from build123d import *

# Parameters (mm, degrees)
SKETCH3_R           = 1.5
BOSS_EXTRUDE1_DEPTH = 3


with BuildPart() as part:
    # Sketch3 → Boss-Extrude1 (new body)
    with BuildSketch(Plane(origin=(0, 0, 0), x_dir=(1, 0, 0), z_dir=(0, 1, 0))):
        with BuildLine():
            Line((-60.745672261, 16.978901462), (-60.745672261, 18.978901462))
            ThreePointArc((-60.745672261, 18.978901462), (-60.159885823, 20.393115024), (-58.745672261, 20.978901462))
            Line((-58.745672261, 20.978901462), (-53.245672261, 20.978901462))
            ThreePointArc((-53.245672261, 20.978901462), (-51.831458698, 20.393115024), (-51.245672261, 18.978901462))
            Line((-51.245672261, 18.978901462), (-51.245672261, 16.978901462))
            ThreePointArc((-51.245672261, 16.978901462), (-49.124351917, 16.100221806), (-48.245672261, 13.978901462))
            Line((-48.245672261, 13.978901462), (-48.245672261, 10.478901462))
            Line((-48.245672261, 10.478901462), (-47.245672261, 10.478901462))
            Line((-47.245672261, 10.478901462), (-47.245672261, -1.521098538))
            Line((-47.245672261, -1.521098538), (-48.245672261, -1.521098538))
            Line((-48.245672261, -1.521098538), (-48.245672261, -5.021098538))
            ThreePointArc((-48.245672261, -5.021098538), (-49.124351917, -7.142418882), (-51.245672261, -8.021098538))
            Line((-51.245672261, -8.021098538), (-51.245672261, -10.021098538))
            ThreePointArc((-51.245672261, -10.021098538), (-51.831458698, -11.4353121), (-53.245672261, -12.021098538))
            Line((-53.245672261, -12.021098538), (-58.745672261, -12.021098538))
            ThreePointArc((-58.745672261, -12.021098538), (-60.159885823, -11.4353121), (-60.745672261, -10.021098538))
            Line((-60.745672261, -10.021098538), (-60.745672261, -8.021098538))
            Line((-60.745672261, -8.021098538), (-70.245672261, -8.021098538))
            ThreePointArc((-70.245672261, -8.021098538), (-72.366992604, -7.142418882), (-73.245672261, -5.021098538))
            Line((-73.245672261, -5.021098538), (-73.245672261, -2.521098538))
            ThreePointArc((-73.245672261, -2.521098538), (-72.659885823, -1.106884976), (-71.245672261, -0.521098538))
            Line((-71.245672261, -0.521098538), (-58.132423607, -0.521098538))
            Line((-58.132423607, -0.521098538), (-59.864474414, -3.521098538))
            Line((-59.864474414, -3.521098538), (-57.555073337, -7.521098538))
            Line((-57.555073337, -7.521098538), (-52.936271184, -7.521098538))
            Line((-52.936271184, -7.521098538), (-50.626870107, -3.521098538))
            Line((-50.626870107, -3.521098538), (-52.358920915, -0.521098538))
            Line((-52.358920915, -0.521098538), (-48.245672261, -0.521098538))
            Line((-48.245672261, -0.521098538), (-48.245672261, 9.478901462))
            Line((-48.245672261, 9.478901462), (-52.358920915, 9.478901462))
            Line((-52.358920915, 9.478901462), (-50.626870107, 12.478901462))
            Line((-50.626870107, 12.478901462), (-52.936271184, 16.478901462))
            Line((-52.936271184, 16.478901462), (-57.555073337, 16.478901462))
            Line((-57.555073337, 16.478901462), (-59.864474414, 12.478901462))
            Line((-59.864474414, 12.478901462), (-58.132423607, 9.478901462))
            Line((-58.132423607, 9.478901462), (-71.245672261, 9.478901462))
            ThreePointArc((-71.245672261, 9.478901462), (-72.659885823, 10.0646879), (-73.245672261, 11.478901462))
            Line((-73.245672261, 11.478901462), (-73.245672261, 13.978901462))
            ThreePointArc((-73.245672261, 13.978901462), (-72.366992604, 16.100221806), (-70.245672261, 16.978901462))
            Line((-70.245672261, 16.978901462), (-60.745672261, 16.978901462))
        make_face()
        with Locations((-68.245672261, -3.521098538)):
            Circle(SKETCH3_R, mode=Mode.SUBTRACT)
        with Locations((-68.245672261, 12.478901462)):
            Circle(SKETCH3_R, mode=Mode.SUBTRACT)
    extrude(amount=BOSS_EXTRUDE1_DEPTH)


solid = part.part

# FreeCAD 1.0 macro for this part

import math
import FreeCAD as App
import Part
import Sketcher
Q = App.Units.Quantity

doc = App.newDocument("Part")
body = doc.addObject("PartDesign::Body", "Body")

# Sketch on XZ plane
sketch1 = doc.addObject("Sketcher::SketchObject", "Sketch")
body.addObject(sketch1)
sketch1.AttachmentSupport = (doc.XZ_Plane, [""])
sketch1.MapMode = "FlatFace"
sketch1.addGeometry([
    Part.LineSegment(App.Vector(-60.7, -19, 0), App.Vector(-60.7, -17, 0)),  # 0
    Part.LineSegment(App.Vector(-60.7, -17, 0), App.Vector(-70.2, -17, 0)),  # 1
    Part.ArcOfCircle(Part.Circle(App.Vector(-70.2, -14, 0), App.Vector(0, 0, 1), 3), math.radians(180), math.radians(270)),  # 2
    Part.LineSegment(App.Vector(-73.2, -14, 0), App.Vector(-73.2, -11.5, 0)),  # 3
    Part.ArcOfCircle(Part.Circle(App.Vector(-71.2, -11.5, 0), App.Vector(0, 0, 1), 2), math.radians(90), math.radians(180)),  # 4
    Part.LineSegment(App.Vector(-71.2, -9.5, 0), App.Vector(-58.1, -9.5, 0)),  # 5
    Part.LineSegment(App.Vector(-58.1, -9.5, 0), App.Vector(-59.9, -12.5, 0)),  # 6
    Part.LineSegment(App.Vector(-59.9, -12.5, 0), App.Vector(-57.6, -16.5, 0)),  # 7
    Part.LineSegment(App.Vector(-57.6, -16.5, 0), App.Vector(-52.9, -16.5, 0)),  # 8
    Part.LineSegment(App.Vector(-52.9, -16.5, 0), App.Vector(-50.6, -12.5, 0)),  # 9
    Part.LineSegment(App.Vector(-50.6, -12.5, 0), App.Vector(-52.4, -9.5, 0)),  # 10
    Part.LineSegment(App.Vector(-52.4, -9.5, 0), App.Vector(-48.2, -9.5, 0)),  # 11
    Part.LineSegment(App.Vector(-48.2, -9.5, 0), App.Vector(-48.2, 0.5, 0)),  # 12
    Part.LineSegment(App.Vector(-48.2, 0.5, 0), App.Vector(-52.4, 0.5, 0)),  # 13
    Part.LineSegment(App.Vector(-52.4, 0.5, 0), App.Vector(-50.6, 3.5, 0)),  # 14
    Part.LineSegment(App.Vector(-50.6, 3.5, 0), App.Vector(-52.9, 7.5, 0)),  # 15
    Part.LineSegment(App.Vector(-52.9, 7.5, 0), App.Vector(-57.6, 7.5, 0)),  # 16
    Part.LineSegment(App.Vector(-57.6, 7.5, 0), App.Vector(-59.9, 3.5, 0)),  # 17
    Part.LineSegment(App.Vector(-59.9, 3.5, 0), App.Vector(-58.1, 0.5, 0)),  # 18
    Part.LineSegment(App.Vector(-58.1, 0.5, 0), App.Vector(-71.2, 0.5, 0)),  # 19
    Part.ArcOfCircle(Part.Circle(App.Vector(-71.2, 2.5, 0), App.Vector(0, 0, 1), 2), math.radians(-180), math.radians(-90)),  # 20
    Part.LineSegment(App.Vector(-73.2, 2.5, 0), App.Vector(-73.2, 5, 0)),  # 21
    Part.ArcOfCircle(Part.Circle(App.Vector(-70.2, 5, 0), App.Vector(0, 0, 1), 3), math.radians(90), math.radians(180)),  # 22
    Part.LineSegment(App.Vector(-70.2, 8, 0), App.Vector(-60.7, 8, 0)),  # 23
    Part.LineSegment(App.Vector(-60.7, 8, 0), App.Vector(-60.7, 10, 0)),  # 24
    Part.ArcOfCircle(Part.Circle(App.Vector(-58.7, 10, 0), App.Vector(0, 0, 1), 2), math.radians(90), math.radians(180)),  # 25
    Part.LineSegment(App.Vector(-58.7, 12, 0), App.Vector(-53.2, 12, 0)),  # 26
    Part.ArcOfCircle(Part.Circle(App.Vector(-53.2, 10, 0), App.Vector(0, 0, 1), 2), math.radians(0), math.radians(90)),  # 27
    Part.LineSegment(App.Vector(-51.2, 10, 0), App.Vector(-51.2, 8, 0)),  # 28
    Part.ArcOfCircle(Part.Circle(App.Vector(-51.2, 5, 0), App.Vector(0, 0, 1), 3), math.radians(0), math.radians(90)),  # 29
    Part.LineSegment(App.Vector(-48.2, 5, 0), App.Vector(-48.2, 1.5, 0)),  # 30
    Part.LineSegment(App.Vector(-48.2, 1.5, 0), App.Vector(-47.2, 1.5, 0)),  # 31
    Part.LineSegment(App.Vector(-47.2, 1.5, 0), App.Vector(-47.2, -10.5, 0)),  # 32
    Part.LineSegment(App.Vector(-47.2, -10.5, 0), App.Vector(-48.2, -10.5, 0)),  # 33
    Part.LineSegment(App.Vector(-48.2, -10.5, 0), App.Vector(-48.2, -14, 0)),  # 34
    Part.ArcOfCircle(Part.Circle(App.Vector(-51.2, -14, 0), App.Vector(0, 0, 1), 3), math.radians(-90), math.radians(0)),  # 35
    Part.LineSegment(App.Vector(-51.2, -17, 0), App.Vector(-51.2, -19, 0)),  # 36
    Part.ArcOfCircle(Part.Circle(App.Vector(-53.2, -19, 0), App.Vector(0, 0, 1), 2), math.radians(-90), math.radians(0)),  # 37
    Part.LineSegment(App.Vector(-53.2, -21, 0), App.Vector(-58.7, -21, 0)),  # 38
    Part.ArcOfCircle(Part.Circle(App.Vector(-58.7, -19, 0), App.Vector(0, 0, 1), 2), math.radians(-180), math.radians(-90)),  # 39
    Part.Circle(App.Vector(-68.2, 3.5, 0), App.Vector(0, 0, 1), 1.5),  # 40
    Part.Circle(App.Vector(-68.2, -12.5, 0), App.Vector(0, 0, 1), 1.5),  # 41
], False)
sketch1.addConstraint([
    Sketcher.Constraint("Coincident", 0, 2, 1, 1),
    Sketcher.Constraint("Tangent", 1, 2, 2, 2),
    Sketcher.Constraint("Tangent", 2, 1, 3, 1),
    Sketcher.Constraint("Tangent", 3, 2, 4, 2),
    Sketcher.Constraint("Tangent", 4, 1, 5, 1),
    Sketcher.Constraint("Coincident", 5, 2, 6, 1),
    Sketcher.Constraint("Coincident", 6, 2, 7, 1),
    Sketcher.Constraint("Coincident", 7, 2, 8, 1),
    Sketcher.Constraint("Coincident", 8, 2, 9, 1),
    Sketcher.Constraint("Coincident", 9, 2, 10, 1),
    Sketcher.Constraint("Coincident", 10, 2, 11, 1),
    Sketcher.Constraint("Coincident", 11, 2, 12, 1),
    Sketcher.Constraint("Coincident", 12, 2, 13, 1),
    Sketcher.Constraint("Coincident", 13, 2, 14, 1),
    Sketcher.Constraint("Coincident", 14, 2, 15, 1),
    Sketcher.Constraint("Coincident", 15, 2, 16, 1),
    Sketcher.Constraint("Coincident", 16, 2, 17, 1),
    Sketcher.Constraint("Coincident", 17, 2, 18, 1),
    Sketcher.Constraint("Coincident", 18, 2, 19, 1),
    Sketcher.Constraint("Tangent", 19, 2, 20, 2),
    Sketcher.Constraint("Tangent", 20, 1, 21, 1),
    Sketcher.Constraint("Tangent", 21, 2, 22, 2),
    Sketcher.Constraint("Tangent", 22, 1, 23, 1),
    Sketcher.Constraint("Coincident", 23, 2, 24, 1),
    Sketcher.Constraint("Tangent", 24, 2, 25, 2),
    Sketcher.Constraint("Tangent", 25, 1, 26, 1),
    Sketcher.Constraint("Tangent", 26, 2, 27, 2),
    Sketcher.Constraint("Tangent", 27, 1, 28, 1),
    Sketcher.Constraint("Coincident", 28, 2, 29, 2),
    Sketcher.Constraint("Tangent", 29, 1, 30, 1),
    Sketcher.Constraint("Coincident", 30, 2, 31, 1),
    Sketcher.Constraint("Coincident", 31, 2, 32, 1),
    Sketcher.Constraint("Coincident", 32, 2, 33, 1),
    Sketcher.Constraint("Coincident", 33, 2, 34, 1),
    Sketcher.Constraint("Tangent", 34, 2, 35, 2),
    Sketcher.Constraint("Coincident", 35, 1, 36, 1),
    Sketcher.Constraint("Tangent", 36, 2, 37, 2),
    Sketcher.Constraint("Tangent", 37, 1, 38, 1),
    Sketcher.Constraint("Tangent", 38, 2, 39, 2),
    Sketcher.Constraint("Tangent", 39, 1, 0, 1),
    Sketcher.Constraint("Vertical", 0),
    Sketcher.Constraint("Horizontal", 1),
    Sketcher.Constraint("Vertical", 3),
    Sketcher.Constraint("Horizontal", 5),
    Sketcher.Constraint("Horizontal", 8),
    Sketcher.Constraint("Horizontal", 11),
    Sketcher.Constraint("Vertical", 12),
    Sketcher.Constraint("Horizontal", 13),
    Sketcher.Constraint("Horizontal", 16),
    Sketcher.Constraint("Horizontal", 19),
    Sketcher.Constraint("Vertical", 21),
    Sketcher.Constraint("Horizontal", 23),
    Sketcher.Constraint("Vertical", 24),
    Sketcher.Constraint("Horizontal", 26),
    Sketcher.Constraint("Vertical", 28),
    Sketcher.Constraint("Vertical", 30),
    Sketcher.Constraint("Horizontal", 31),
    Sketcher.Constraint("Vertical", 32),
    Sketcher.Constraint("Horizontal", 33),
    Sketcher.Constraint("Vertical", 34),
    Sketcher.Constraint("Vertical", 36),
    Sketcher.Constraint("Horizontal", 38),
    Sketcher.Constraint("Equal", 4, 20),
    Sketcher.Constraint("Equal", 2, 22),
    Sketcher.Constraint("Equal", 20, 25),
    Sketcher.Constraint("Equal", 25, 27),
    Sketcher.Constraint("Equal", 22, 29),
    Sketcher.Constraint("Equal", 29, 35),
    Sketcher.Constraint("Equal", 27, 37),
    Sketcher.Constraint("Equal", 37, 39),
    Sketcher.Constraint("Equal", 40, 41),
    Sketcher.Constraint("Parallel", 6, 9),
    Sketcher.Constraint("Parallel", 7, 10),
    Sketcher.Constraint("Parallel", 9, 14),
    Sketcher.Constraint("Parallel", 10, 15),
    Sketcher.Constraint("Parallel", 14, 17),
    Sketcher.Constraint("Parallel", 15, 18),
    Sketcher.Constraint("Horizontal", 22, 3, 29, 3),
    Sketcher.Constraint("Horizontal", 2, 3, 35, 3),
    Sketcher.Constraint("Horizontal", 41, 3, 6, 2),
    Sketcher.Constraint("Horizontal", 6, 2, 9, 2),
    Sketcher.Constraint("Horizontal", 5, 2, 10, 2),
    Sketcher.Constraint("Horizontal", 40, 3, 14, 2),
    Sketcher.Constraint("Horizontal", 14, 2, 17, 2),
    Sketcher.Constraint("Horizontal", 13, 2, 18, 2),
    Sketcher.Constraint("Vertical", 4, 3, 20, 3),
    Sketcher.Constraint("Vertical", 29, 3, 35, 3),
    Sketcher.Constraint("Vertical", 27, 3, 37, 3),
    Sketcher.Constraint("Vertical", 25, 3, 39, 3),
    Sketcher.Constraint("Vertical", 40, 3, 41, 3),
    Sketcher.Constraint("Vertical", 10, 2, 13, 2),
    Sketcher.Constraint("Vertical", 9, 2, 14, 2),
    Sketcher.Constraint("Vertical", 8, 2, 15, 2),
    Sketcher.Constraint("Vertical", 7, 2, 16, 2),
    Sketcher.Constraint("Vertical", 6, 2, 17, 2),
    Sketcher.Constraint("Vertical", 35, 3, 27, 1),
    Sketcher.Constraint("Vertical", 12, 2, 29, 1),
    Sketcher.Constraint("Equal", 3, 21),
    Sketcher.Constraint("Equal", 0, 24),
    Sketcher.Constraint("Equal", 30, 34),
    Sketcher.Constraint("Diameter", 40, Q("3 mm")),
    Sketcher.Constraint("Radius", 2, Q("3 mm")),
    Sketcher.Constraint("Radius", 4, Q("2 mm")),
    Sketcher.Constraint("DistanceX", 31, 1, 31, 2, Q("1 mm")),
    Sketcher.Constraint("DistanceY", 0, 1, 0, 2, Q("2 mm")),
    Sketcher.Constraint("DistanceY", 12, 1, 12, 2, Q("10 mm")),
    Sketcher.Constraint("DistanceY", 32, 2, 32, 1, Q("12 mm")),
    Sketcher.Constraint("Angle", 6, Q("-120 deg")),
    Sketcher.Constraint("DistanceX", 1, 2, 1, 1, Q("9.5 mm")),
    Sketcher.Constraint("DistanceX", 26, 1, 26, 2, Q("5.5 mm")),
    Sketcher.Constraint("DistanceY", 3, 1, 3, 2, Q("2.5 mm")),
    Sketcher.Constraint("DistanceX", 22, 3, 40, 3, Q("2 mm")),
    Sketcher.Constraint("DistanceY", 20, 3, 40, 3, Q("1 mm")),
    Sketcher.Constraint("DistanceY", 7, 2, 6, 2, Q("4 mm")),
    Sketcher.Constraint("DistanceX", 5, 1, 5, 2, Q("13.113249 mm")),
    Sketcher.Constraint("DistanceX", 11, 1, 11, 2, Q("4.113249 mm")),
    Sketcher.Constraint("DistanceY", 2, 3, -1, 1, Q("13.978901 mm")),
    Sketcher.Constraint("DistanceX", 8, 2, -1, 1, Q("52.936271 mm")),
])
pad1 = doc.addObject("PartDesign::Pad", "Pad")
body.addObject(pad1)
pad1.Profile = sketch1
pad1.Length = 3
pad1.Reversed = True

doc.recompute()
